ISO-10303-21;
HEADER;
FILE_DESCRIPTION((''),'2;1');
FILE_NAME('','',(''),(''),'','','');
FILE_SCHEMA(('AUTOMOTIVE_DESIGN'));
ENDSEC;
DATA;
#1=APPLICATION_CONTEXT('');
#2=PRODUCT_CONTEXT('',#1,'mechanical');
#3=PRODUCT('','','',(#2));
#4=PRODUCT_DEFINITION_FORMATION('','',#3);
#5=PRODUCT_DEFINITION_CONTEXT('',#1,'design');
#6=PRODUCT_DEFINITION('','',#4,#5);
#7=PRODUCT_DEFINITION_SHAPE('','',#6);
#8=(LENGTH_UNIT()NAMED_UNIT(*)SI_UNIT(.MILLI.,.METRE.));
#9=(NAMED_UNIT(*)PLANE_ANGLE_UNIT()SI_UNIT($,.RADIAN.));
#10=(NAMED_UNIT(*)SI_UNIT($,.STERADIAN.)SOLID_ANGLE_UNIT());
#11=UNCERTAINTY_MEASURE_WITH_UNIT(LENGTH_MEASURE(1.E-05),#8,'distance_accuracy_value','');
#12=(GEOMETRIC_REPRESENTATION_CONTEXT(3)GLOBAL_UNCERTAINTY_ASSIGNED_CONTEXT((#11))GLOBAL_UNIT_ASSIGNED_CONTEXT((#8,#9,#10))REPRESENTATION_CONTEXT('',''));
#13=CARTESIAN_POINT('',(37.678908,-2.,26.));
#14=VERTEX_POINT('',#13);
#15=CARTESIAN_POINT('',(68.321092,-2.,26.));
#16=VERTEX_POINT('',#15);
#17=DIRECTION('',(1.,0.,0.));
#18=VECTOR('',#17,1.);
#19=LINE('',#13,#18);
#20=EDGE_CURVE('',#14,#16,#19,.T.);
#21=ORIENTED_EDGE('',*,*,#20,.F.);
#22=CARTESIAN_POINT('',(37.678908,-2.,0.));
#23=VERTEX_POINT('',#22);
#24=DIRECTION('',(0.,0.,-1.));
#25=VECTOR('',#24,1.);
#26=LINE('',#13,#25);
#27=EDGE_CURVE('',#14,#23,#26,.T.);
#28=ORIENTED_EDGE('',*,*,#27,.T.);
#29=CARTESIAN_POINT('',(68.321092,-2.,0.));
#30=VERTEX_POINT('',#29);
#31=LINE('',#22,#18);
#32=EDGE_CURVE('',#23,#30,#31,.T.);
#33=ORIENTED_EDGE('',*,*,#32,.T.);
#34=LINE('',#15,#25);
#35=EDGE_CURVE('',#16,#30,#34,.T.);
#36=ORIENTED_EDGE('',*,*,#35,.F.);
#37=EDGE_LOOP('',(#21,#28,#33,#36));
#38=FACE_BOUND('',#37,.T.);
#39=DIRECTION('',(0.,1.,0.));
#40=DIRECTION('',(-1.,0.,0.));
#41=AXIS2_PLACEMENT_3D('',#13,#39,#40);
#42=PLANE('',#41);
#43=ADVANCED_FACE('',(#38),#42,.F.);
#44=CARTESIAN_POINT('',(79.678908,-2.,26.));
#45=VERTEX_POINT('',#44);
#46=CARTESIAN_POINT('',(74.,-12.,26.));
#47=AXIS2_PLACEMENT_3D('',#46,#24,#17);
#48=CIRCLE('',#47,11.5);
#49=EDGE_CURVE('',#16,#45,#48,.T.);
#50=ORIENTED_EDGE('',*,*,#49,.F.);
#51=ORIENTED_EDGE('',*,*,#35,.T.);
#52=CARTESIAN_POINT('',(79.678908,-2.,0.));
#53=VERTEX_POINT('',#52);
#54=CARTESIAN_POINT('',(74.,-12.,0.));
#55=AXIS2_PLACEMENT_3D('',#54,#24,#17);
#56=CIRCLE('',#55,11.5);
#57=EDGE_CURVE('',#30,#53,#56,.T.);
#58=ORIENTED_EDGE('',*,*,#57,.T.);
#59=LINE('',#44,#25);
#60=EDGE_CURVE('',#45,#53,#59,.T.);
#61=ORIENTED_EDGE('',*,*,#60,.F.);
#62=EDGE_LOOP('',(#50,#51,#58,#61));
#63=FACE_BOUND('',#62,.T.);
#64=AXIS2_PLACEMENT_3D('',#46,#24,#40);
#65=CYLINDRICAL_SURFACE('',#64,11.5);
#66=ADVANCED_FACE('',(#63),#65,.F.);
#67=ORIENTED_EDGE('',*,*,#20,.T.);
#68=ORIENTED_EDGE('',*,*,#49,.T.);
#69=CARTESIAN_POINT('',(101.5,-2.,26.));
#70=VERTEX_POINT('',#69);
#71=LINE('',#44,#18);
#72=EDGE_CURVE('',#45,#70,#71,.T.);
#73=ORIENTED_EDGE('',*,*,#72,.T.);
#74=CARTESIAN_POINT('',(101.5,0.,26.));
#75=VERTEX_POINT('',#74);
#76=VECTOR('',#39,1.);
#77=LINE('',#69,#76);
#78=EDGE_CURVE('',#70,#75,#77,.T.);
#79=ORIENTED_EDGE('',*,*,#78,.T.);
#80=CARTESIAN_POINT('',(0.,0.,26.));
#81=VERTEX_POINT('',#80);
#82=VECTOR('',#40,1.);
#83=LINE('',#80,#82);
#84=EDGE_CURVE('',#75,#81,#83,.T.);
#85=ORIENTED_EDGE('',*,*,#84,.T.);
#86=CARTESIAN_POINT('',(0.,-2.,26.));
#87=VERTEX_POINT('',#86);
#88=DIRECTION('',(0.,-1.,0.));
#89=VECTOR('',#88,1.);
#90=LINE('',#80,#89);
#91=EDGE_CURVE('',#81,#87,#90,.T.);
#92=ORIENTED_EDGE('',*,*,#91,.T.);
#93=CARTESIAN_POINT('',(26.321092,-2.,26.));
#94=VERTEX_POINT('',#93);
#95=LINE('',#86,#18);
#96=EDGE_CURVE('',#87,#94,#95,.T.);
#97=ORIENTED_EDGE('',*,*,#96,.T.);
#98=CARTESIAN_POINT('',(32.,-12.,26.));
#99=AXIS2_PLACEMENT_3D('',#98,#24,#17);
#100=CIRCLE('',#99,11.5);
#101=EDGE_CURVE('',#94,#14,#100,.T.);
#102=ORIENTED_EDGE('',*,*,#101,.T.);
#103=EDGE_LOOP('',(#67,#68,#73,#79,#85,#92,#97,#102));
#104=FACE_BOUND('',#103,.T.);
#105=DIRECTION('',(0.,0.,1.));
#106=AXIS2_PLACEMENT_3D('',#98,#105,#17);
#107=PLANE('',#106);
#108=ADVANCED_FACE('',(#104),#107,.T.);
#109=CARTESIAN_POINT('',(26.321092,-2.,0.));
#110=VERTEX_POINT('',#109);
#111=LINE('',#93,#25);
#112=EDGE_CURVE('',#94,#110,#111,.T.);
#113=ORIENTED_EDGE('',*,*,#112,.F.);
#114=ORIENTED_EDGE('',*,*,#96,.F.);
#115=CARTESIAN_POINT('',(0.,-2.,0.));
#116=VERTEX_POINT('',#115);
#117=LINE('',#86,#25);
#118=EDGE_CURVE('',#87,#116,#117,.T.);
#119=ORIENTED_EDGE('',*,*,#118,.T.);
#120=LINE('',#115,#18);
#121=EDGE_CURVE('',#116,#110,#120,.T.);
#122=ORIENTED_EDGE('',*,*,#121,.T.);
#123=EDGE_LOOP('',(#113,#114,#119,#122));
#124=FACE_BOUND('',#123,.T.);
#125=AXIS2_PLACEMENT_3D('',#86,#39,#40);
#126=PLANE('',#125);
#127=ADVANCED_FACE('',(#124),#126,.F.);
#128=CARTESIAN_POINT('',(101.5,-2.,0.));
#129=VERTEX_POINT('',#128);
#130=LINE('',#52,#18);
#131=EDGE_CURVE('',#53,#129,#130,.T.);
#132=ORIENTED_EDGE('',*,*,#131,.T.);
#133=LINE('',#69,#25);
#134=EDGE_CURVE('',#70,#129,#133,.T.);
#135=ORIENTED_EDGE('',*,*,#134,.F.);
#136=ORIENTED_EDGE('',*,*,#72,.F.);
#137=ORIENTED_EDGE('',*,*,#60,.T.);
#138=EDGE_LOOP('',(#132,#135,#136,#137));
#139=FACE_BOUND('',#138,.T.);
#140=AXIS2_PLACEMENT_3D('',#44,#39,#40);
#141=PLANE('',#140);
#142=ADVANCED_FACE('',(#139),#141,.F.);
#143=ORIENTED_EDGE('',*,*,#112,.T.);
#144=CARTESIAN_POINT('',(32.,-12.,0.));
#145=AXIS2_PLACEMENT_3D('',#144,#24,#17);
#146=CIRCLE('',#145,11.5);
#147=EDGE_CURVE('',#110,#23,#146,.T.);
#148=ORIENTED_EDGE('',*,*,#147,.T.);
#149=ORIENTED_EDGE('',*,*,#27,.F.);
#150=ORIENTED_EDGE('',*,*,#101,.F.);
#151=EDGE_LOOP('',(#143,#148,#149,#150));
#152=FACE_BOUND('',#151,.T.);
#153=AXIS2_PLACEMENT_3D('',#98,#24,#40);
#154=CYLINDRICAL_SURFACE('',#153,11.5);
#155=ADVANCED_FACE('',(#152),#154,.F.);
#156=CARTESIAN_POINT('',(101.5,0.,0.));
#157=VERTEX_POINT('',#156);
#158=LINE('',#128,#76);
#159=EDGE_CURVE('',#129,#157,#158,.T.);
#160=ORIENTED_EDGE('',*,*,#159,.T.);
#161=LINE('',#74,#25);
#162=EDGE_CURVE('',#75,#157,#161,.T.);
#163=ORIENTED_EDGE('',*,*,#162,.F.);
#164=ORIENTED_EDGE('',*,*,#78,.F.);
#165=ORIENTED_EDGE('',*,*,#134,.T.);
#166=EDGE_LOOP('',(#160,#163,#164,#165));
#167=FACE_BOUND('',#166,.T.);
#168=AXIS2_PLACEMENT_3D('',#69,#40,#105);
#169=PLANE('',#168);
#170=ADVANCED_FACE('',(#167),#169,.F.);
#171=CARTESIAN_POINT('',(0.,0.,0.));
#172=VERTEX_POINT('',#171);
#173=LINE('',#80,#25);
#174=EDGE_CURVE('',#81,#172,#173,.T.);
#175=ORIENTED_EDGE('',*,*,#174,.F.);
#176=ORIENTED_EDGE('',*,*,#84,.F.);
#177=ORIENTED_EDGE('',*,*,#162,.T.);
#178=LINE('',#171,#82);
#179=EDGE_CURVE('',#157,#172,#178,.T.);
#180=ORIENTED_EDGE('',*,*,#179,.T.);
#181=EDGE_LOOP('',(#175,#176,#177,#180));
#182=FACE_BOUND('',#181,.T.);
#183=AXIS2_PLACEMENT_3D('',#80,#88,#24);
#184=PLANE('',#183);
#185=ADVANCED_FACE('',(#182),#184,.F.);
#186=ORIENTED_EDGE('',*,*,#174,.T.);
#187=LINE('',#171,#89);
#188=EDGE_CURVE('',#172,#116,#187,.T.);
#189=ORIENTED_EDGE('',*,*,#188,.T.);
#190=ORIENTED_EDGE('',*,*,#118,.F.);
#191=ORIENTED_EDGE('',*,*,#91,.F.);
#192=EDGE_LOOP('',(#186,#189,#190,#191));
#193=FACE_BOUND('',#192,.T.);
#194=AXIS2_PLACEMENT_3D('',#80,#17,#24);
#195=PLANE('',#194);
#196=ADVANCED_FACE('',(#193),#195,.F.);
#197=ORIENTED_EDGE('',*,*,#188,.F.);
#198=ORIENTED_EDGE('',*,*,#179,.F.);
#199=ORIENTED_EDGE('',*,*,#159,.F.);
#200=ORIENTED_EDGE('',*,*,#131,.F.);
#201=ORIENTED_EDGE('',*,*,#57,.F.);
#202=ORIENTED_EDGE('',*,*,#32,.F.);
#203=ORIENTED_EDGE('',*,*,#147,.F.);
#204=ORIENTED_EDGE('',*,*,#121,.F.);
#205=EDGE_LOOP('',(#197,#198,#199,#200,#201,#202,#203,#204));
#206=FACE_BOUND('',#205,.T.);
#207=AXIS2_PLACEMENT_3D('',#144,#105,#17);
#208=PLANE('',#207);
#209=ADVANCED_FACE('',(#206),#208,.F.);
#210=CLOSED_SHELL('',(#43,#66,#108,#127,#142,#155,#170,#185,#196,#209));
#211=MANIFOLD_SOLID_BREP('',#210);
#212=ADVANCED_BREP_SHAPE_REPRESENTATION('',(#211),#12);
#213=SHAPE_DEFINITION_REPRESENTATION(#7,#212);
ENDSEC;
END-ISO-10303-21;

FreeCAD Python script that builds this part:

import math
import FreeCAD as App
import Part
import Sketcher

doc = App.newDocument("Part")
body = doc.addObject("PartDesign::Body", "Body")

# Sketch on XY plane
sketch1 = body.newObject("Sketcher::SketchObject", "Sketch")
sketch1.AttachmentSupport = (doc.getObject("XY_Plane"), [""])
sketch1.MapMode = "FlatFace"
sketch1.addGeometry(Part.LineSegment(App.Vector(101.5, 0, 0), App.Vector(0, 0, 0)), False)
sketch1.addGeometry(Part.LineSegment(App.Vector(0, 0, 0), App.Vector(0, -2, 0)), False)
sketch1.addGeometry(Part.LineSegment(App.Vector(0, -2, 0), App.Vector(26.321092, -2, 0)), False)
sketch1.addGeometry(Part.ArcOfCircle(Part.Circle(App.Vector(32, -12, 0), App.Vector(0, 0, 1), 11.5), math.radians(60.408154), math.radians(119.591846)), False)
sketch1.addGeometry(Part.LineSegment(App.Vector(37.678908, -2, 0), App.Vector(68.321092, -2, 0)), False)
sketch1.addGeometry(Part.ArcOfCircle(Part.Circle(App.Vector(74, -12, 0), App.Vector(0, 0, 1), 11.5), math.radians(60.408154), math.radians(119.591846)), False)
sketch1.addGeometry(Part.LineSegment(App.Vector(79.678908, -2, 0), App.Vector(101.5, -2, 0)), False)
sketch1.addGeometry(Part.LineSegment(App.Vector(101.5, -2, 0), App.Vector(101.5, 0, 0)), False)
sketch1.addConstraint(Sketcher.Constraint("Coincident", 0, 2, 1, 1))
sketch1.addConstraint(Sketcher.Constraint("Coincident", 1, 2, 2, 1))
sketch1.addConstraint(Sketcher.Constraint("Coincident", 2, 2, 3, 2))
sketch1.addConstraint(Sketcher.Constraint("Coincident", 3, 1, 4, 1))
sketch1.addConstraint(Sketcher.Constraint("Coincident", 4, 2, 5, 2))
sketch1.addConstraint(Sketcher.Constraint("Coincident", 5, 1, 6, 1))
sketch1.addConstraint(Sketcher.Constraint("Coincident", 6, 2, 7, 1))
sketch1.addConstraint(Sketcher.Constraint("Coincident", 7, 2, 0, 1))
sketch1.addConstraint(Sketcher.Constraint("Horizontal", 0))
sketch1.addConstraint(Sketcher.Constraint("Vertical", 1))
sketch1.addConstraint(Sketcher.Constraint("Horizontal", 2))
sketch1.addConstraint(Sketcher.Constraint("Horizontal", 4))
sketch1.addConstraint(Sketcher.Constraint("Horizontal", 6))
sketch1.addConstraint(Sketcher.Constraint("Vertical", 7))
sketch1.addConstraint(Sketcher.Constraint("Coincident", 0, 2, -1, 1))
sketch1.addConstraint(Sketcher.Constraint("Equal", 3, 5))
sketch1.addConstraint(Sketcher.Constraint("Horizontal", 3, 3, 5, 3))
sketch1.addConstraint(Sketcher.Constraint("Horizontal", 2, 2, 3, 1))
sketch1.addConstraint(Sketcher.Constraint("Horizontal", 4, 2, 5, 1))
sketch1.addConstraint(Sketcher.Constraint("Radius", 3, 11.5))
sketch1.addConstraint(Sketcher.Constraint("DistanceY", 1, 2, 1, 1, 2.0))
sketch1.addConstraint(Sketcher.Constraint("DistanceX", 0, 2, 0, 1, 101.5))
sketch1.addConstraint(Sketcher.Constraint("DistanceX", -1, 1, 3, 3, 32.0))
sketch1.addConstraint(Sketcher.Constraint("DistanceY", 3, 3, -1, 1, 12.0))
sketch1.addConstraint(Sketcher.Constraint("DistanceX", -1, 1, 5, 3, 74.0))
pad1 = body.newObject("PartDesign::Pad", "Pad")
pad1.Profile = sketch1
pad1.Length = 26

doc.recompute()
